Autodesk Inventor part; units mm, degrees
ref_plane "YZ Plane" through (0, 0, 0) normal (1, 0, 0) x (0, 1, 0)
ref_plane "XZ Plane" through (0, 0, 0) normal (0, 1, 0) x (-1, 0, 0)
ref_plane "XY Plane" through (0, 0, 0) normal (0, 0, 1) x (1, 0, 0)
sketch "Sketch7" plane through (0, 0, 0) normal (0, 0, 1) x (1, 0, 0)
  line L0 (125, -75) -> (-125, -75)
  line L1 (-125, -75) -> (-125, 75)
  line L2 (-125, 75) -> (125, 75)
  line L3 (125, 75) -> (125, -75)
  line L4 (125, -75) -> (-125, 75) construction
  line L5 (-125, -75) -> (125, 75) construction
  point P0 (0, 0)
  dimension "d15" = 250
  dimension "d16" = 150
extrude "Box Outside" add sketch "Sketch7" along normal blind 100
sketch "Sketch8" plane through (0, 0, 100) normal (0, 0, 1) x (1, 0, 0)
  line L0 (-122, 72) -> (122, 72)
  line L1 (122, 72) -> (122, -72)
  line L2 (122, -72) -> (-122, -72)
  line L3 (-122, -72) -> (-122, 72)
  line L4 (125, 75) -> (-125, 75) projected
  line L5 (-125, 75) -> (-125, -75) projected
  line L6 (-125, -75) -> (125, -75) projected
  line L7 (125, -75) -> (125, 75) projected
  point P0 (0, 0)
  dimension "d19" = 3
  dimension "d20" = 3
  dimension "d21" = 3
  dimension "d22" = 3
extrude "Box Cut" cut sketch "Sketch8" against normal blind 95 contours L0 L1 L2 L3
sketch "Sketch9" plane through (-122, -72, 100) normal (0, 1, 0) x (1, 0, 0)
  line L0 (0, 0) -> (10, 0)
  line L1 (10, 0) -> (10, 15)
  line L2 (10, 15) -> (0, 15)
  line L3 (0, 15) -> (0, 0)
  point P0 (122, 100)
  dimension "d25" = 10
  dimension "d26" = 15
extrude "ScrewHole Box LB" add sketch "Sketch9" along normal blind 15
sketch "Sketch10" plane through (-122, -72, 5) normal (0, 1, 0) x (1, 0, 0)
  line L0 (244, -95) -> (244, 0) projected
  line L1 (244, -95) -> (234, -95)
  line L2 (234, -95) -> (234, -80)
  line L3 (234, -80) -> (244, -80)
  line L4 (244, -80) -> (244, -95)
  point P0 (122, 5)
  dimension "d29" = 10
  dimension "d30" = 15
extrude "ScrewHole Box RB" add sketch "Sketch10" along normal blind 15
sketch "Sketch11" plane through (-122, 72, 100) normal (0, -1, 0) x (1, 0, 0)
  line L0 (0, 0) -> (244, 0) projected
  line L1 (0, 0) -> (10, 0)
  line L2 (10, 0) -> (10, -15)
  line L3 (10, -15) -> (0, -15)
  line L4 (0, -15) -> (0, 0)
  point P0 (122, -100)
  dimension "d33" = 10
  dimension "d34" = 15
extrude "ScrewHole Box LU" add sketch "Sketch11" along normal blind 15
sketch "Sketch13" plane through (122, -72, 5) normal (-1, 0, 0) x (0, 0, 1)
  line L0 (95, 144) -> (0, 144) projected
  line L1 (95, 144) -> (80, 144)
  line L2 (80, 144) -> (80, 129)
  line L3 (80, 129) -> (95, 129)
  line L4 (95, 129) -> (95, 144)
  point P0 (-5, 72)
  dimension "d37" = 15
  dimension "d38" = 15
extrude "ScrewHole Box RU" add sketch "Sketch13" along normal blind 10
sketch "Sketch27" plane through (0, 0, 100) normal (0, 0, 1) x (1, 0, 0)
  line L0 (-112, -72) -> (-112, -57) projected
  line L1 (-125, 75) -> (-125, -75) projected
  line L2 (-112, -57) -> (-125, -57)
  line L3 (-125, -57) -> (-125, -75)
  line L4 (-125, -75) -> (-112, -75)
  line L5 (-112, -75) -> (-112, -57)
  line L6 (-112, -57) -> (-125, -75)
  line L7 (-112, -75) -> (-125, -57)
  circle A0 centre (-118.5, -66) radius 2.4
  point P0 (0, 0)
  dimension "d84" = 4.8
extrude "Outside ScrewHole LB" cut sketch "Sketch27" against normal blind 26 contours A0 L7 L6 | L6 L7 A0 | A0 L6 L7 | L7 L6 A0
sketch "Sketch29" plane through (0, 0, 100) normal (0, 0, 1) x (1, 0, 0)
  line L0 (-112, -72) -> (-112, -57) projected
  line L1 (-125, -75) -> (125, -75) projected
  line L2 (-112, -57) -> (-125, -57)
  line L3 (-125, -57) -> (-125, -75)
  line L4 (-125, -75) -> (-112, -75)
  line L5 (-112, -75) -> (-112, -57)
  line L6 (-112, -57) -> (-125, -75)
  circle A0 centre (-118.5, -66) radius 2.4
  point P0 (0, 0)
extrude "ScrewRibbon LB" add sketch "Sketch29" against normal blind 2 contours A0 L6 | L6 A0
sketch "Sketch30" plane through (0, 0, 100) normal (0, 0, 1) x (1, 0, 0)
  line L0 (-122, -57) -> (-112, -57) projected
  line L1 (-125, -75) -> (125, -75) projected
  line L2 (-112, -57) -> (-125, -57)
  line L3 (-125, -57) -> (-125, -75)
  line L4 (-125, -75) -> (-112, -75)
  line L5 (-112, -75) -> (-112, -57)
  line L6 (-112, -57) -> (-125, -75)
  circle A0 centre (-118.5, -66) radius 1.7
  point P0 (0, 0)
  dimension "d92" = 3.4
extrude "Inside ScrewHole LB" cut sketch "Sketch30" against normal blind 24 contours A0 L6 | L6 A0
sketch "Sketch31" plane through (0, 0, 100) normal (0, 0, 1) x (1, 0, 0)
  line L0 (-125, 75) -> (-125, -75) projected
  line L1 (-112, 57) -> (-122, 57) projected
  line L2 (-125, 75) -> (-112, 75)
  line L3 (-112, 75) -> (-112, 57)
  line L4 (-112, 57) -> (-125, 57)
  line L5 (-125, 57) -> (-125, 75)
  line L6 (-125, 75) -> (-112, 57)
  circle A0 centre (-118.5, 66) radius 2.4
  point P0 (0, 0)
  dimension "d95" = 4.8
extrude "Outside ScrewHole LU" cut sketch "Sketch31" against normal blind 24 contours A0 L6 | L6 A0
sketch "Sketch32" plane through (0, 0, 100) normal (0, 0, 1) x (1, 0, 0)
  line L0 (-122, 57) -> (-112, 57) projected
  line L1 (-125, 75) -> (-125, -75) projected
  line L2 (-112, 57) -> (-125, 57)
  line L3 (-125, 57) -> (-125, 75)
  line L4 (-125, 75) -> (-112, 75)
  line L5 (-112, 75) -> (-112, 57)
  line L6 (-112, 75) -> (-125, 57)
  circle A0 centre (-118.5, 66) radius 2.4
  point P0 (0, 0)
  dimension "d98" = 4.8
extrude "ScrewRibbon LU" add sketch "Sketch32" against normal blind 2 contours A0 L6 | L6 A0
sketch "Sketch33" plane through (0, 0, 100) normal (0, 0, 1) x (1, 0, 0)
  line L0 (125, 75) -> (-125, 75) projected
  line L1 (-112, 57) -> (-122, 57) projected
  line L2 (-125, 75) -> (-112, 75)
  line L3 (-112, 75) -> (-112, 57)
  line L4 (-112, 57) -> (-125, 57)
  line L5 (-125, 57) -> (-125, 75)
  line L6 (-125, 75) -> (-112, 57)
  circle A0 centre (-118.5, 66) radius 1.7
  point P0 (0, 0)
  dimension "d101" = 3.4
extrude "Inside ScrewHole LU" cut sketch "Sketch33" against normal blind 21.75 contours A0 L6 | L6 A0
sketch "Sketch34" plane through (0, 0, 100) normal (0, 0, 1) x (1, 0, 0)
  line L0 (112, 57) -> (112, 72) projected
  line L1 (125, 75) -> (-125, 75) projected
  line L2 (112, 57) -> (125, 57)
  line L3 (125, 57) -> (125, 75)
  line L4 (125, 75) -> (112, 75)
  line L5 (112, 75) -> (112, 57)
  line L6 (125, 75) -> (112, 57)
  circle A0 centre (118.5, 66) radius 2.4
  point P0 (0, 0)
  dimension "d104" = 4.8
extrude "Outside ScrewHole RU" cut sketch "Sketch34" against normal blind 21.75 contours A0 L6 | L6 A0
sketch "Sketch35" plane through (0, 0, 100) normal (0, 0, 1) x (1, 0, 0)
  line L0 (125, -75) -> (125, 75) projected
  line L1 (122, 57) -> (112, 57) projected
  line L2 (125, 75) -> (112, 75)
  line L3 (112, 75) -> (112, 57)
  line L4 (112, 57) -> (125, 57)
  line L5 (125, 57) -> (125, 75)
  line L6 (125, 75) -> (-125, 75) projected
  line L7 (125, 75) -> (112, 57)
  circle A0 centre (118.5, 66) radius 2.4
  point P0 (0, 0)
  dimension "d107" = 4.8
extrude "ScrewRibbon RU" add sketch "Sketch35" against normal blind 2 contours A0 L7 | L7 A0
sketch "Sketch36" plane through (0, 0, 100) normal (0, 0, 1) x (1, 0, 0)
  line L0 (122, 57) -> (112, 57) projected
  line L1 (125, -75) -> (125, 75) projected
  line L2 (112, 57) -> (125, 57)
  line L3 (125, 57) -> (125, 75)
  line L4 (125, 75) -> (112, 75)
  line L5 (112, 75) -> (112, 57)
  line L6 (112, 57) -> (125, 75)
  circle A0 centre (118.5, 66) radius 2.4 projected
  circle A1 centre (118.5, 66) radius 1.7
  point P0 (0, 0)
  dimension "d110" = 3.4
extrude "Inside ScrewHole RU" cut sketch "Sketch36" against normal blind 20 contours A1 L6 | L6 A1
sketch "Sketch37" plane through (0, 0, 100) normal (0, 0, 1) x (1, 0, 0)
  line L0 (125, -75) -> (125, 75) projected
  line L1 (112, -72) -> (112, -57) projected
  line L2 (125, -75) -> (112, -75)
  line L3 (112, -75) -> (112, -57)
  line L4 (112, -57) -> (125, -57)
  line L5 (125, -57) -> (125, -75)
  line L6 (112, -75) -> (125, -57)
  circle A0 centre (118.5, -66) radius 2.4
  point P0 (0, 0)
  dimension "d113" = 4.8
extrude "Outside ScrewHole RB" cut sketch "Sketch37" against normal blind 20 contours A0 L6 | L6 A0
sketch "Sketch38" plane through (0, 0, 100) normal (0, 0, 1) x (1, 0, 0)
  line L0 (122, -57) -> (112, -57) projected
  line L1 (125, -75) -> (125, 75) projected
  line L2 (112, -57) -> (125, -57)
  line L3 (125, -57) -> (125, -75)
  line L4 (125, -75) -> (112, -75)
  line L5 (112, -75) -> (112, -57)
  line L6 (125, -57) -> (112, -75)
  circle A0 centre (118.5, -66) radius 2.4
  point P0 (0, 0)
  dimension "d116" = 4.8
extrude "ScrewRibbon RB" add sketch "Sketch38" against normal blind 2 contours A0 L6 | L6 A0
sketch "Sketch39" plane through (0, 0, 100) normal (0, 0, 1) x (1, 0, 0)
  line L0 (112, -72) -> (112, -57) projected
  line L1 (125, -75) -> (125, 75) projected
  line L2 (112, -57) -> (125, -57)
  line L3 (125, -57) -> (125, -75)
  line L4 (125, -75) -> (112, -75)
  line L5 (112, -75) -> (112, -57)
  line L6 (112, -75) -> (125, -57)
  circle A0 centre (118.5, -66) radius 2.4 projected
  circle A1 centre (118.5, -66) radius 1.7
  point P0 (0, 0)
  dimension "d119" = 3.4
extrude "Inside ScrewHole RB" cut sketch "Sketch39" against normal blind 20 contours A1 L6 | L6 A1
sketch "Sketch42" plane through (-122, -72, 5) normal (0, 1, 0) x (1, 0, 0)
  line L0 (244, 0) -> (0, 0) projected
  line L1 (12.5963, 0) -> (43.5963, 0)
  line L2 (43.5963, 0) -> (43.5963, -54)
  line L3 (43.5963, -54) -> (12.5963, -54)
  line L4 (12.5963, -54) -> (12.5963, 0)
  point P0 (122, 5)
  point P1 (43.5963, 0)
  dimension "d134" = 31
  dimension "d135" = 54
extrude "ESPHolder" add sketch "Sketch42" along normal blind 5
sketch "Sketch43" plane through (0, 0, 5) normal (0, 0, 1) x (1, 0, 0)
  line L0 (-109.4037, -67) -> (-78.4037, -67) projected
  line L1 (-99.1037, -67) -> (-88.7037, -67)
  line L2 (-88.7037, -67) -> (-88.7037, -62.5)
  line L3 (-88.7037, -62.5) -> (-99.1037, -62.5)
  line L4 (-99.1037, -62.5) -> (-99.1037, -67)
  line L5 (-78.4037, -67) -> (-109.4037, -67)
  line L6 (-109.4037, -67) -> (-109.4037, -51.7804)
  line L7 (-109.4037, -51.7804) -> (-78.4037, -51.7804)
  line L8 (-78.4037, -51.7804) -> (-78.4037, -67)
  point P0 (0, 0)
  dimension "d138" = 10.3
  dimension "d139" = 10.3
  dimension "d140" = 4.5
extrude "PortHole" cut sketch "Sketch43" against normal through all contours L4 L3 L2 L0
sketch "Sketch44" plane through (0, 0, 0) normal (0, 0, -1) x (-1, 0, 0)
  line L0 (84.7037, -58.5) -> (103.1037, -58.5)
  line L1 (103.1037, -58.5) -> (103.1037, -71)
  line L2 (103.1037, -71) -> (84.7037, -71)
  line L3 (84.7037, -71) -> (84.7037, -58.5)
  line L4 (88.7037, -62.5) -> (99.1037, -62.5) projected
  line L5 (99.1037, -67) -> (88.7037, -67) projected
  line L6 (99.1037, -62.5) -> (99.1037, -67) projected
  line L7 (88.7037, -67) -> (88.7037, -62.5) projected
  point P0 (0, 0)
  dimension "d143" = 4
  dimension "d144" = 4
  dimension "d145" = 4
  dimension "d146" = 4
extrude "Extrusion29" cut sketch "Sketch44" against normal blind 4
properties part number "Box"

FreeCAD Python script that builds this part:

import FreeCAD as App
import Part
import Sketcher

V = App.Vector
Q = App.Units.Quantity

doc = App.newDocument("Part")
params = doc.addObject("Spreadsheet::Sheet", "Params")
for row, (alias, value) in enumerate([
    ("sketch1_width", "250 mm"),
    ("sketch1_height", "150 mm"),
    ("pad1_length", "100 mm"),
    ("sketch2_width", "244 mm"),
    ("sketch2_height", "144 mm"),
    ("pocket1_length", "95 mm"),
    ("sketch3_width", "10 mm"),
    ("sketch3_height", "15 mm"),
    ("pad2_length", "15 mm"),
    ("sketch4_width", "10 mm"),
    ("sketch4_height", "15 mm"),
    ("pad3_length", "15 mm"),
    ("sketch5_width", "10 mm"),
    ("sketch5_height", "15 mm"),
    ("pad4_length", "15 mm"),
    ("sketch6_width", "15 mm"),
    ("pad5_length", "10 mm"),
    ("sketch7_diameter", "4.8 mm"),
    ("pocket2_length", "26 mm"),
    ("sketch8_diameter", "4.8 mm"),
    ("pad6_length", "2 mm"),
    ("sketch9_diameter", "3.4 mm"),
    ("pocket3_length", "24 mm"),
    ("sketch10_diameter", "4.8 mm"),
    ("pocket4_length", "24 mm"),
    ("sketch11_diameter", "4.8 mm"),
    ("pad7_length", "2 mm"),
    ("sketch12_diameter", "3.4 mm"),
    ("pocket5_length", "21.75 mm"),
    ("sketch13_diameter", "4.8 mm"),
    ("pocket6_length", "21.75 mm"),
    ("sketch14_diameter", "4.8 mm"),
    ("pad8_length", "2 mm"),
    ("sketch15_diameter", "3.4 mm"),
    ("pocket7_length", "20 mm"),
    ("sketch16_diameter", "4.8 mm"),
    ("pocket8_length", "20 mm"),
    ("sketch17_diameter", "4.8 mm"),
    ("pad9_length", "2 mm"),
    ("sketch18_diameter", "3.4 mm"),
    ("pocket9_length", "20 mm"),
    ("sketch19_width", "31 mm"),
    ("sketch19_height", "54 mm"),
    ("pad10_length", "5 mm"),
    ("sketch20_height", "4.5 mm"),
    ("sketch20_width", "10.4 mm"),
    ("sketch21_width", "18.4 mm"),
    ("sketch21_height", "12.5 mm"),
    ("pocket11_length", "4 mm"),
], start=1):
    params.set(f"A{row}", alias)
    params.set(f"B{row}", "=" + value)
    params.setAlias(f"B{row}", alias)

body = doc.addObject("PartDesign::Body", "Body")

# Sketch on XY plane
sketch1 = doc.addObject("Sketcher::SketchObject", "Sketch")
body.addObject(sketch1)
sketch1.AttachmentSupport = (doc.XY_Plane, [""])
sketch1.MapMode = "FlatFace"
sketch1.addGeometry(Part.LineSegment(V(-125, -75, 0), V(125, -75, 0)), False)
sketch1.addGeometry(Part.LineSegment(V(125, -75, 0), V(125, 75, 0)), False)
sketch1.addGeometry(Part.LineSegment(V(125, 75, 0), V(-125, 75, 0)), False)
sketch1.addGeometry(Part.LineSegment(V(-125, 75, 0), V(-125, -75, 0)), False)
sketch1.addConstraint(Sketcher.Constraint("Coincident", 0, 2, 1, 1))
sketch1.addConstraint(Sketcher.Constraint("Coincident", 1, 2, 2, 1))
sketch1.addConstraint(Sketcher.Constraint("Coincident", 2, 2, 3, 1))
sketch1.addConstraint(Sketcher.Constraint("Coincident", 3, 2, 0, 1))
sketch1.addConstraint(Sketcher.Constraint("Horizontal", 0))
sketch1.addConstraint(Sketcher.Constraint("Vertical", 1))
sketch1.addConstraint(Sketcher.Constraint("Horizontal", 2))
sketch1.addConstraint(Sketcher.Constraint("Vertical", 3))
sketch1.addConstraint(Sketcher.Constraint("Symmetric", 0, 2, 2, 2, -1, 1))
sketch1.addConstraint(Sketcher.Constraint("DistanceX", 0, 1, 0, 2, Q("250 mm")))
sketch1.addConstraint(Sketcher.Constraint("DistanceY", 1, 1, 1, 2, Q("150 mm")))
sketch1.setExpression("Constraints[9]", "Params.sketch1_width")
sketch1.setExpression("Constraints[10]", "Params.sketch1_height")
pad1 = doc.addObject("PartDesign::Pad", "Pad")
body.addObject(pad1)
pad1.Profile = sketch1
pad1.setExpression("Length", "Params.pad1_length")

# Sketch on XY plane
sketch2 = doc.addObject("Sketcher::SketchObject", "Sketch001")
body.addObject(sketch2)
sketch2.AttachmentSupport = (doc.XY_Plane, [""])
sketch2.MapMode = "FlatFace"
sketch2.AttachmentOffset = App.Placement(V(0, 0, 100), App.Rotation())
sketch2.addGeometry(Part.LineSegment(V(122, 72, 0), V(-122, 72, 0)), False)
sketch2.addGeometry(Part.LineSegment(V(-122, 72, 0), V(-122, -72, 0)), False)
sketch2.addGeometry(Part.LineSegment(V(-122, -72, 0), V(122, -72, 0)), False)
sketch2.addGeometry(Part.LineSegment(V(122, -72, 0), V(122, 72, 0)), False)
sketch2.addConstraint(Sketcher.Constraint("Coincident", 0, 2, 1, 1))
sketch2.addConstraint(Sketcher.Constraint("Coincident", 1, 2, 2, 1))
sketch2.addConstraint(Sketcher.Constraint("Coincident", 2, 2, 3, 1))
sketch2.addConstraint(Sketcher.Constraint("Coincident", 3, 2, 0, 1))
sketch2.addConstraint(Sketcher.Constraint("Horizontal", 0))
sketch2.addConstraint(Sketcher.Constraint("Vertical", 1))
sketch2.addConstraint(Sketcher.Constraint("Horizontal", 2))
sketch2.addConstraint(Sketcher.Constraint("Vertical", 3))
sketch2.addConstraint(Sketcher.Constraint("Symmetric", 0, 2, 2, 2, -1, 1))
sketch2.addConstraint(Sketcher.Constraint("DistanceX", 0, 2, 0, 1, Q("244 mm")))
sketch2.addConstraint(Sketcher.Constraint("DistanceY", 1, 2, 1, 1, Q("144 mm")))
sketch2.setExpression("Constraints[9]", "Params.sketch2_width")
sketch2.setExpression("Constraints[10]", "Params.sketch2_height")
pocket1 = doc.addObject("PartDesign::Pocket", "Pocket")
body.addObject(pocket1)
pocket1.Profile = sketch2
pocket1.setExpression("Length", "Params.pocket1_length")

# Sketch on XZ plane
sketch3 = doc.addObject("Sketcher::SketchObject", "Sketch002")
body.addObject(sketch3)
sketch3.AttachmentSupport = (doc.XZ_Plane, [""])
sketch3.MapMode = "FlatFace"
sketch3.AttachmentOffset = App.Placement(V(0, 0, 72), App.Rotation())
sketch3.addGeometry(Part.LineSegment(V(-122, 85, 0), V(-122, 100, 0)), False)
sketch3.addGeometry(Part.LineSegment(V(-122, 100, 0), V(-112, 100, 0)), False)
sketch3.addGeometry(Part.LineSegment(V(-112, 100, 0), V(-112, 85, 0)), False)
sketch3.addGeometry(Part.LineSegment(V(-112, 85, 0), V(-122, 85, 0)), False)
sketch3.addConstraint(Sketcher.Constraint("Coincident", 0, 2, 1, 1))
sketch3.addConstraint(Sketcher.Constraint("Coincident", 1, 2, 2, 1))
sketch3.addConstraint(Sketcher.Constraint("Coincident", 2, 2, 3, 1))
sketch3.addConstraint(Sketcher.Constraint("Coincident", 3, 2, 0, 1))
sketch3.addConstraint(Sketcher.Constraint("Vertical", 0))
sketch3.addConstraint(Sketcher.Constraint("Horizontal", 1))
sketch3.addConstraint(Sketcher.Constraint("Vertical", 2))
sketch3.addConstraint(Sketcher.Constraint("Horizontal", 3))
sketch3.addConstraint(Sketcher.Constraint("DistanceX", 1, 1, 1, 2, Q("10 mm")))
sketch3.addConstraint(Sketcher.Constraint("DistanceY", 0, 1, 0, 2, Q("15 mm")))
sketch3.addConstraint(Sketcher.Constraint("DistanceX", 0, 2, -1, 1, Q("122 mm")))
sketch3.addConstraint(Sketcher.Constraint("DistanceY", -1, 1, 0, 2, Q("100 mm")))
sketch3.setExpression("Constraints[8]", "Params.sketch3_width")
sketch3.setExpression("Constraints[9]", "Params.sketch3_height")
pad2 = doc.addObject("PartDesign::Pad", "Pad001")
body.addObject(pad2)
pad2.Profile = sketch3
pad2.setExpression("Length", "Params.pad2_length")
pad2.Reversed = True

# Sketch on XZ plane
sketch4 = doc.addObject("Sketcher::SketchObject", "Sketch003")
body.addObject(sketch4)
sketch4.AttachmentSupport = (doc.XZ_Plane, [""])
sketch4.MapMode = "FlatFace"
sketch4.AttachmentOffset = App.Placement(V(0, 0, 72), App.Rotation())
sketch4.addGeometry(Part.LineSegment(V(112, 100, 0), V(122, 100, 0)), False)
sketch4.addGeometry(Part.LineSegment(V(122, 100, 0), V(122, 85, 0)), False)
sketch4.addGeometry(Part.LineSegment(V(122, 85, 0), V(112, 85, 0)), False)
sketch4.addGeometry(Part.LineSegment(V(112, 85, 0), V(112, 100, 0)), False)
sketch4.addConstraint(Sketcher.Constraint("Coincident", 0, 2, 1, 1))
sketch4.addConstraint(Sketcher.Constraint("Coincident", 1, 2, 2, 1))
sketch4.addConstraint(Sketcher.Constraint("Coincident", 2, 2, 3, 1))
sketch4.addConstraint(Sketcher.Constraint("Coincident", 3, 2, 0, 1))
sketch4.addConstraint(Sketcher.Constraint("Horizontal", 0))
sketch4.addConstraint(Sketcher.Constraint("Vertical", 1))
sketch4.addConstraint(Sketcher.Constraint("Horizontal", 2))
sketch4.addConstraint(Sketcher.Constraint("Vertical", 3))
sketch4.addConstraint(Sketcher.Constraint("DistanceX", 0, 1, 0, 2, Q("10 mm")))
sketch4.addConstraint(Sketcher.Constraint("DistanceY", 1, 2, 1, 1, Q("15 mm")))
sketch4.addConstraint(Sketcher.Constraint("DistanceX", -1, 1, 0, 2, Q("122 mm")))
sketch4.addConstraint(Sketcher.Constraint("DistanceY", -1, 1, 0, 2, Q("100 mm")))
sketch4.setExpression("Constraints[8]", "Params.sketch4_width")
sketch4.setExpression("Constraints[9]", "Params.sketch4_height")
pad3 = doc.addObject("PartDesign::Pad", "Pad002")
body.addObject(pad3)
pad3.Profile = sketch4
pad3.setExpression("Length", "Params.pad3_length")
pad3.Reversed = True

# Sketch on XZ plane
sketch5 = doc.addObject("Sketcher::SketchObject", "Sketch004")
body.addObject(sketch5)
sketch5.AttachmentSupport = (doc.XZ_Plane, [""])
sketch5.MapMode = "FlatFace"
sketch5.AttachmentOffset = App.Placement(V(0, 0, -72), App.Rotation())
sketch5.addGeometry(Part.LineSegment(V(-112, 100, 0), V(-122, 100, 0)), False)
sketch5.addGeometry(Part.LineSegment(V(-122, 100, 0), V(-122, 85, 0)), False)
sketch5.addGeometry(Part.LineSegment(V(-122, 85, 0), V(-112, 85, 0)), False)
sketch5.addGeometry(Part.LineSegment(V(-112, 85, 0), V(-112, 100, 0)), False)
sketch5.addConstraint(Sketcher.Constraint("Coincident", 0, 2, 1, 1))
sketch5.addConstraint(Sketcher.Constraint("Coincident", 1, 2, 2, 1))
sketch5.addConstraint(Sketcher.Constraint("Coincident", 2, 2, 3, 1))
sketch5.addConstraint(Sketcher.Constraint("Coincident", 3, 2, 0, 1))
sketch5.addConstraint(Sketcher.Constraint("Horizontal", 0))
sketch5.addConstraint(Sketcher.Constraint("Vertical", 1))
sketch5.addConstraint(Sketcher.Constraint("Horizontal", 2))
sketch5.addConstraint(Sketcher.Constraint("Vertical", 3))
sketch5.addConstraint(Sketcher.Constraint("DistanceX", 0, 2, 0, 1, Q("10 mm")))
sketch5.addConstraint(Sketcher.Constraint("DistanceY", 1, 2, 1, 1, Q("15 mm")))
sketch5.addConstraint(Sketcher.Constraint("DistanceX", 0, 2, -1, 1, Q("122 mm")))
sketch5.addConstraint(Sketcher.Constraint("DistanceY", -1, 1, 0, 2, Q("100 mm")))
sketch5.setExpression("Constraints[8]", "Params.sketch5_width")
sketch5.setExpression("Constraints[9]", "Params.sketch5_height")
pad4 = doc.addObject("PartDesign::Pad", "Pad003")
body.addObject(pad4)
pad4.Profile = sketch5
pad4.setExpression("Length", "Params.pad4_length")

# Sketch on YZ plane
sketch6 = doc.addObject("Sketcher::SketchObject", "Sketch005")
body.addObject(sketch6)
sketch6.AttachmentSupport = (doc.YZ_Plane, [""])
sketch6.MapMode = "FlatFace"
sketch6.AttachmentOffset = App.Placement(V(0, 0, 122), App.Rotation())
sketch6.addGeometry(Part.LineSegment(V(57, 100, 0), V(72, 100, 0)), False)
sketch6.addGeometry(Part.LineSegment(V(72, 100, 0), V(72, 85, 0)), False)
sketch6.addGeometry(Part.LineSegment(V(72, 85, 0), V(57, 85, 0)), False)
sketch6.addGeometry(Part.LineSegment(V(57, 85, 0), V(57, 100, 0)), False)
sketch6.addConstraint(Sketcher.Constraint("Coincident", 0, 2, 1, 1))
sketch6.addConstraint(Sketcher.Constraint("Coincident", 1, 2, 2, 1))
sketch6.addConstraint(Sketcher.Constraint("Coincident", 2, 2, 3, 1))
sketch6.addConstraint(Sketcher.Constraint("Coincident", 3, 2, 0, 1))
sketch6.addConstraint(Sketcher.Constraint("Horizontal", 0))
sketch6.addConstraint(Sketcher.Constraint("Vertical", 1))
sketch6.addConstraint(Sketcher.Constraint("Horizontal", 2))
sketch6.addConstraint(Sketcher.Constraint("Vertical", 3))
sketch6.addConstraint(Sketcher.Constraint("Equal", 2, 1))
sketch6.addConstraint(Sketcher.Constraint("DistanceX", 0, 1, 0, 2, Q("15 mm")))
sketch6.addConstraint(Sketcher.Constraint("DistanceX", -1, 1, 0, 2, Q("72 mm")))
sketch6.addConstraint(Sketcher.Constraint("DistanceY", -1, 1, 0, 2, Q("100 mm")))
sketch6.setExpression("Constraints[9]", "Params.sketch6_width")
pad5 = doc.addObject("PartDesign::Pad", "Pad004")
body.addObject(pad5)
pad5.Profile = sketch6
pad5.setExpression("Length", "Params.pad5_length")
pad5.Reversed = True

# Sketch on XY plane
sketch7 = doc.addObject("Sketcher::SketchObject", "Sketch006")
body.addObject(sketch7)
sketch7.AttachmentSupport = (doc.XY_Plane, [""])
sketch7.MapMode = "FlatFace"
sketch7.AttachmentOffset = App.Placement(V(0, 0, 100), App.Rotation())
sketch7.addGeometry(Part.Circle(V(-118.5, -66, 0), V(0, 0, 1), 2.4), False)
sketch7.addConstraint(Sketcher.Constraint("Diameter", 0, Q("4.8 mm")))
sketch7.addConstraint(Sketcher.Constraint("DistanceY", 0, 3, -1, 1, Q("66 mm")))
sketch7.addConstraint(Sketcher.Constraint("DistanceX", 0, 3, -1, 1, Q("118.5 mm")))
sketch7.setExpression("Constraints[0]", "Params.sketch7_diameter")
pocket2 = doc.addObject("PartDesign::Pocket", "Pocket001")
body.addObject(pocket2)
pocket2.Profile = sketch7
pocket2.setExpression("Length", "Params.pocket2_length")

# Sketch on XY plane
sketch8 = doc.addObject("Sketcher::SketchObject", "Sketch007")
body.addObject(sketch8)
sketch8.AttachmentSupport = (doc.XY_Plane, [""])
sketch8.MapMode = "FlatFace"
sketch8.AttachmentOffset = App.Placement(V(0, 0, 100), App.Rotation())
sketch8.addGeometry(Part.Circle(V(-118.5, -66, 0), V(0, 0, 1), 2.4), False)
sketch8.addConstraint(Sketcher.Constraint("Diameter", 0, Q("4.8 mm")))
sketch8.addConstraint(Sketcher.Constraint("DistanceY", 0, 3, -1, 1, Q("66 mm")))
sketch8.addConstraint(Sketcher.Constraint("DistanceX", 0, 3, -1, 1, Q("118.5 mm")))
sketch8.setExpression("Constraints[0]", "Params.sketch8_diameter")
pad6 = doc.addObject("PartDesign::Pad", "Pad005")
body.addObject(pad6)
pad6.Profile = sketch8
pad6.setExpression("Length", "Params.pad6_length")
pad6.Reversed = True

# Sketch on XY plane
sketch9 = doc.addObject("Sketcher::SketchObject", "Sketch008")
body.addObject(sketch9)
sketch9.AttachmentSupport = (doc.XY_Plane, [""])
sketch9.MapMode = "FlatFace"
sketch9.AttachmentOffset = App.Placement(V(0, 0, 100), App.Rotation())
sketch9.addGeometry(Part.Circle(V(-118.5, -66, 0), V(0, 0, 1), 1.7), False)
sketch9.addConstraint(Sketcher.Constraint("Diameter", 0, Q("3.4 mm")))
sketch9.addConstraint(Sketcher.Constraint("DistanceY", 0, 3, -1, 1, Q("66 mm")))
sketch9.addConstraint(Sketcher.Constraint("DistanceX", 0, 3, -1, 1, Q("118.5 mm")))
sketch9.setExpression("Constraints[0]", "Params.sketch9_diameter")
pocket3 = doc.addObject("PartDesign::Pocket", "Pocket002")
body.addObject(pocket3)
pocket3.Profile = sketch9
pocket3.setExpression("Length", "Params.pocket3_length")

# Sketch on XY plane
sketch10 = doc.addObject("Sketcher::SketchObject", "Sketch009")
body.addObject(sketch10)
sketch10.AttachmentSupport = (doc.XY_Plane, [""])
sketch10.MapMode = "FlatFace"
sketch10.AttachmentOffset = App.Placement(V(0, 0, 100), App.Rotation())
sketch10.addGeometry(Part.Circle(V(-118.5, 66, 0), V(0, 0, 1), 2.4), False)
sketch10.addConstraint(Sketcher.Constraint("Diameter", 0, Q("4.8 mm")))
sketch10.addConstraint(Sketcher.Constraint("DistanceY", -1, 1, 0, 3, Q("66 mm")))
sketch10.addConstraint(Sketcher.Constraint("DistanceX", 0, 3, -1, 1, Q("118.5 mm")))
sketch10.setExpression("Constraints[0]", "Params.sketch10_diameter")
pocket4 = doc.addObject("PartDesign::Pocket", "Pocket003")
body.addObject(pocket4)
pocket4.Profile = sketch10
pocket4.setExpression("Length", "Params.pocket4_length")

# Sketch on XY plane
sketch11 = doc.addObject("Sketcher::SketchObject", "Sketch010")
body.addObject(sketch11)
sketch11.AttachmentSupport = (doc.XY_Plane, [""])
sketch11.MapMode = "FlatFace"
sketch11.AttachmentOffset = App.Placement(V(0, 0, 100), App.Rotation())
sketch11.addGeometry(Part.Circle(V(-118.5, 66, 0), V(0, 0, 1), 2.4), False)
sketch11.addConstraint(Sketcher.Constraint("Diameter", 0, Q("4.8 mm")))
sketch11.addConstraint(Sketcher.Constraint("DistanceY", -1, 1, 0, 3, Q("66 mm")))
sketch11.addConstraint(Sketcher.Constraint("DistanceX", 0, 3, -1, 1, Q("118.5 mm")))
sketch11.setExpression("Constraints[0]", "Params.sketch11_diameter")
pad7 = doc.addObject("PartDesign::Pad", "Pad006")
body.addObject(pad7)
pad7.Profile = sketch11
pad7.setExpression("Length", "Params.pad7_length")
pad7.Reversed = True

# Sketch on XY plane
sketch12 = doc.addObject("Sketcher::SketchObject", "Sketch011")
body.addObject(sketch12)
sketch12.AttachmentSupport = (doc.XY_Plane, [""])
sketch12.MapMode = "FlatFace"
sketch12.AttachmentOffset = App.Placement(V(0, 0, 100), App.Rotation())
sketch12.addGeometry(Part.Circle(V(-118.5, 66, 0), V(0, 0, 1), 1.7), False)
sketch12.addConstraint(Sketcher.Constraint("Diameter", 0, Q("3.4 mm")))
sketch12.addConstraint(Sketcher.Constraint("DistanceY", -1, 1, 0, 3, Q("66 mm")))
sketch12.addConstraint(Sketcher.Constraint("DistanceX", 0, 3, -1, 1, Q("118.5 mm")))
sketch12.setExpression("Constraints[0]", "Params.sketch12_diameter")
pocket5 = doc.addObject("PartDesign::Pocket", "Pocket004")
body.addObject(pocket5)
pocket5.Profile = sketch12
pocket5.setExpression("Length", "Params.pocket5_length")

# Sketch on XY plane
sketch13 = doc.addObject("Sketcher::SketchObject", "Sketch012")
body.addObject(sketch13)
sketch13.AttachmentSupport = (doc.XY_Plane, [""])
sketch13.MapMode = "FlatFace"
sketch13.AttachmentOffset = App.Placement(V(0, 0, 100), App.Rotation())
sketch13.addGeometry(Part.Circle(V(118.5, 66, 0), V(0, 0, 1), 2.4), False)
sketch13.addConstraint(Sketcher.Constraint("Diameter", 0, Q("4.8 mm")))
sketch13.addConstraint(Sketcher.Constraint("DistanceY", -1, 1, 0, 3, Q("66 mm")))
sketch13.addConstraint(Sketcher.Constraint("DistanceX", -1, 1, 0, 3, Q("118.5 mm")))
sketch13.setExpression("Constraints[0]", "Params.sketch13_diameter")
pocket6 = doc.addObject("PartDesign::Pocket", "Pocket005")
body.addObject(pocket6)
pocket6.Profile = sketch13
pocket6.setExpression("Length", "Params.pocket6_length")

# Sketch on XY plane
sketch14 = doc.addObject("Sketcher::SketchObject", "Sketch013")
body.addObject(sketch14)
sketch14.AttachmentSupport = (doc.XY_Plane, [""])
sketch14.MapMode = "FlatFace"
sketch14.AttachmentOffset = App.Placement(V(0, 0, 100), App.Rotation())
sketch14.addGeometry(Part.Circle(V(118.5, 66, 0), V(0, 0, 1), 2.4), False)
sketch14.addConstraint(Sketcher.Constraint("Diameter", 0, Q("4.8 mm")))
sketch14.addConstraint(Sketcher.Constraint("DistanceY", -1, 1, 0, 3, Q("66 mm")))
sketch14.addConstraint(Sketcher.Constraint("DistanceX", -1, 1, 0, 3, Q("118.5 mm")))
sketch14.setExpression("Constraints[0]", "Params.sketch14_diameter")
pad8 = doc.addObject("PartDesign::Pad", "Pad007")
body.addObject(pad8)
pad8.Profile = sketch14
pad8.setExpression("Length", "Params.pad8_length")
pad8.Reversed = True

# Sketch on XY plane
sketch15 = doc.addObject("Sketcher::SketchObject", "Sketch014")
body.addObject(sketch15)
sketch15.AttachmentSupport = (doc.XY_Plane, [""])
sketch15.MapMode = "FlatFace"
sketch15.AttachmentOffset = App.Placement(V(0, 0, 100), App.Rotation())
sketch15.addGeometry(Part.Circle(V(118.5, 66, 0), V(0, 0, 1), 1.7), False)
sketch15.addConstraint(Sketcher.Constraint("Diameter", 0, Q("3.4 mm")))
sketch15.addConstraint(Sketcher.Constraint("DistanceY", -1, 1, 0, 3, Q("66 mm")))
sketch15.addConstraint(Sketcher.Constraint("DistanceX", -1, 1, 0, 3, Q("118.5 mm")))
sketch15.setExpression("Constraints[0]", "Params.sketch15_diameter")
pocket7 = doc.addObject("PartDesign::Pocket", "Pocket006")
body.addObject(pocket7)
pocket7.Profile = sketch15
pocket7.setExpression("Length", "Params.pocket7_length")

# Sketch on XY plane
sketch16 = doc.addObject("Sketcher::SketchObject", "Sketch015")
body.addObject(sketch16)
sketch16.AttachmentSupport = (doc.XY_Plane, [""])
sketch16.MapMode = "FlatFace"
sketch16.AttachmentOffset = App.Placement(V(0, 0, 100), App.Rotation())
sketch16.addGeometry(Part.Circle(V(118.5, -66, 0), V(0, 0, 1), 2.4), False)
sketch16.addConstraint(Sketcher.Constraint("Diameter", 0, Q("4.8 mm")))
sketch16.addConstraint(Sketcher.Constraint("DistanceY", 0, 3, -1, 1, Q("66 mm")))
sketch16.addConstraint(Sketcher.Constraint("DistanceX", -1, 1, 0, 3, Q("118.5 mm")))
sketch16.setExpression("Constraints[0]", "Params.sketch16_diameter")
pocket8 = doc.addObject("PartDesign::Pocket", "Pocket007")
body.addObject(pocket8)
pocket8.Profile = sketch16
pocket8.setExpression("Length", "Params.pocket8_length")

# Sketch on XY plane
sketch17 = doc.addObject("Sketcher::SketchObject", "Sketch016")
body.addObject(sketch17)
sketch17.AttachmentSupport = (doc.XY_Plane, [""])
sketch17.MapMode = "FlatFace"
sketch17.AttachmentOffset = App.Placement(V(0, 0, 100), App.Rotation())
sketch17.addGeometry(Part.Circle(V(118.5, -66, 0), V(0, 0, 1), 2.4), False)
sketch17.addConstraint(Sketcher.Constraint("Diameter", 0, Q("4.8 mm")))
sketch17.addConstraint(Sketcher.Constraint("DistanceY", 0, 3, -1, 1, Q("66 mm")))
sketch17.addConstraint(Sketcher.Constraint("DistanceX", -1, 1, 0, 3, Q("118.5 mm")))
sketch17.setExpression("Constraints[0]", "Params.sketch17_diameter")
pad9 = doc.addObject("PartDesign::Pad", "Pad008")
body.addObject(pad9)
pad9.Profile = sketch17
pad9.setExpression("Length", "Params.pad9_length")
pad9.Reversed = True

# Sketch on XY plane
sketch18 = doc.addObject("Sketcher::SketchObject", "Sketch017")
body.addObject(sketch18)
sketch18.AttachmentSupport = (doc.XY_Plane, [""])
sketch18.MapMode = "FlatFace"
sketch18.AttachmentOffset = App.Placement(V(0, 0, 100), App.Rotation())
sketch18.addGeometry(Part.Circle(V(118.5, -66, 0), V(0, 0, 1), 1.7), False)
sketch18.addConstraint(Sketcher.Constraint("Diameter", 0, Q("3.4 mm")))
sketch18.addConstraint(Sketcher.Constraint("DistanceY", 0, 3, -1, 1, Q("66 mm")))
sketch18.addConstraint(Sketcher.Constraint("DistanceX", -1, 1, 0, 3, Q("118.5 mm")))
sketch18.setExpression("Constraints[0]", "Params.sketch18_diameter")
pocket9 = doc.addObject("PartDesign::Pocket", "Pocket008")
body.addObject(pocket9)
pocket9.Profile = sketch18
pocket9.setExpression("Length", "Params.pocket9_length")

# Sketch on XZ plane
sketch19 = doc.addObject("Sketcher::SketchObject", "Sketch018")
body.addObject(sketch19)
sketch19.AttachmentSupport = (doc.XZ_Plane, [""])
sketch19.MapMode = "FlatFace"
sketch19.AttachmentOffset = App.Placement(V(0, 0, 72), App.Rotation())
sketch19.addGeometry(Part.LineSegment(V(-78.4037, 59, 0), V(-78.4037, 5, 0)), False)
sketch19.addGeometry(Part.LineSegment(V(-78.4037, 5, 0), V(-109.4037, 5, 0)), False)
sketch19.addGeometry(Part.LineSegment(V(-109.4037, 5, 0), V(-109.4037, 59, 0)), False)
sketch19.addGeometry(Part.LineSegment(V(-109.4037, 59, 0), V(-78.4037, 59, 0)), False)
sketch19.addConstraint(Sketcher.Constraint("Coincident", 0, 2, 1, 1))
sketch19.addConstraint(Sketcher.Constraint("Coincident", 1, 2, 2, 1))
sketch19.addConstraint(Sketcher.Constraint("Coincident", 2, 2, 3, 1))
sketch19.addConstraint(Sketcher.Constraint("Coincident", 3, 2, 0, 1))
sketch19.addConstraint(Sketcher.Constraint("Vertical", 0))
sketch19.addConstraint(Sketcher.Constraint("Horizontal", 1))
sketch19.addConstraint(Sketcher.Constraint("Vertical", 2))
sketch19.addConstraint(Sketcher.Constraint("Horizontal", 3))
sketch19.addConstraint(Sketcher.Constraint("DistanceX", 1, 2, 1, 1, Q("31 mm")))
sketch19.addConstraint(Sketcher.Constraint("DistanceY", 0, 2, 0, 1, Q("54 mm")))
sketch19.addConstraint(Sketcher.Constraint("DistanceY", -1, 1, 0, 2, Q("5 mm")))
sketch19.addConstraint(Sketcher.Constraint("DistanceX", 0, 2, -1, 1, Q("78.4037 mm")))
sketch19.setExpression("Constraints[8]", "Params.sketch19_width")
sketch19.setExpression("Constraints[9]", "Params.sketch19_height")
pad10 = doc.addObject("PartDesign::Pad", "Pad009")
body.addObject(pad10)
pad10.Profile = sketch19
pad10.setExpression("Length", "Params.pad10_length")
pad10.Reversed = True

# Sketch on XY plane
sketch20 = doc.addObject("Sketcher::SketchObject", "Sketch019")
body.addObject(sketch20)
sketch20.AttachmentSupport = (doc.XY_Plane, [""])
sketch20.MapMode = "FlatFace"
sketch20.AttachmentOffset = App.Placement(V(0, 0, 5), App.Rotation())
sketch20.addGeometry(Part.LineSegment(V(-99.1037, -62.5, 0), V(-99.1037, -67, 0)), False)
sketch20.addGeometry(Part.LineSegment(V(-99.1037, -67, 0), V(-88.7037, -67, 0)), False)
sketch20.addGeometry(Part.LineSegment(V(-88.7037, -67, 0), V(-88.7037, -62.5, 0)), False)
sketch20.addGeometry(Part.LineSegment(V(-88.7037, -62.5, 0), V(-99.1037, -62.5, 0)), False)
sketch20.addConstraint(Sketcher.Constraint("Coincident", 0, 2, 1, 1))
sketch20.addConstraint(Sketcher.Constraint("Coincident", 1, 2, 2, 1))
sketch20.addConstraint(Sketcher.Constraint("Coincident", 2, 2, 3, 1))
sketch20.addConstraint(Sketcher.Constraint("Coincident", 3, 2, 0, 1))
sketch20.addConstraint(Sketcher.Constraint("Vertical", 0))
sketch20.addConstraint(Sketcher.Constraint("Horizontal", 1))
sketch20.addConstraint(Sketcher.Constraint("Vertical", 2))
sketch20.addConstraint(Sketcher.Constraint("Horizontal", 3))
sketch20.addConstraint(Sketcher.Constraint("DistanceY", 0, 2, 0, 1, Q("4.5 mm")))
sketch20.addConstraint(Sketcher.Constraint("DistanceX", 1, 1, 1, 2, Q("10.4 mm")))
sketch20.addConstraint(Sketcher.Constraint("DistanceY", 0, 2, -1, 1, Q("67 mm")))
sketch20.addConstraint(Sketcher.Constraint("DistanceX", 0, 2, -1, 1, Q("99.1037 mm")))
sketch20.setExpression("Constraints[8]", "Params.sketch20_height")
sketch20.setExpression("Constraints[9]", "Params.sketch20_width")
pocket10 = doc.addObject("PartDesign::Pocket", "Pocket009")
body.addObject(pocket10)
pocket10.Profile = sketch20
pocket10.Type = "ThroughAll"

# Sketch on XY plane
sketch21 = doc.addObject("Sketcher::SketchObject", "Sketch020")
body.addObject(sketch21)
sketch21.AttachmentSupport = (doc.XY_Plane, [""])
sketch21.MapMode = "FlatFace"
sketch21.addGeometry(Part.LineSegment(V(-103.1037, -58.5, 0), V(-84.7037, -58.5, 0)), False)
sketch21.addGeometry(Part.LineSegment(V(-84.7037, -58.5, 0), V(-84.7037, -71, 0)), False)
sketch21.addGeometry(Part.LineSegment(V(-84.7037, -71, 0), V(-103.1037, -71, 0)), False)
sketch21.addGeometry(Part.LineSegment(V(-103.1037, -71, 0), V(-103.1037, -58.5, 0)), False)
sketch21.addGeometry(Part.LineSegment(V(-88.7037, -67, 0), V(-88.7037, -62.5, 0)), False)
sketch21.addGeometry(Part.LineSegment(V(-88.7037, -62.5, 0), V(-99.1037, -62.5, 0)), False)
sketch21.addGeometry(Part.LineSegment(V(-99.1037, -62.5, 0), V(-99.1037, -67, 0)), False)
sketch21.addGeometry(Part.LineSegment(V(-99.1037, -67, 0), V(-88.7037, -67, 0)), False)
sketch21.addConstraint(Sketcher.Constraint("Coincident", 0, 2, 1, 1))
sketch21.addConstraint(Sketcher.Constraint("Coincident", 1, 2, 2, 1))
sketch21.addConstraint(Sketcher.Constraint("Coincident", 2, 2, 3, 1))
sketch21.addConstraint(Sketcher.Constraint("Coincident", 3, 2, 0, 1))
sketch21.addConstraint(Sketcher.Constraint("Coincident", 4, 2, 5, 1))
sketch21.addConstraint(Sketcher.Constraint("Coincident", 5, 2, 6, 1))
sketch21.addConstraint(Sketcher.Constraint("Coincident", 6, 2, 7, 1))
sketch21.addConstraint(Sketcher.Constraint("Coincident", 7, 2, 4, 1))
sketch21.addConstraint(Sketcher.Constraint("Horizontal", 0))
sketch21.addConstraint(Sketcher.Constraint("Vertical", 1))
sketch21.addConstraint(Sketcher.Constraint("Horizontal", 2))
sketch21.addConstraint(Sketcher.Constraint("Vertical", 3))
sketch21.addConstraint(Sketcher.Constraint("Vertical", 4))
sketch21.addConstraint(Sketcher.Constraint("Horizontal", 5))
sketch21.addConstraint(Sketcher.Constraint("Vertical", 6))
sketch21.addConstraint(Sketcher.Constraint("Horizontal", 7))
sketch21.addConstraint(Sketcher.Constraint("DistanceX", 4, 2, 0, 2, Q("4 mm")))
sketch21.addConstraint(Sketcher.Constraint("DistanceY", 4, 2, 0, 2, Q("4 mm")))
sketch21.addConstraint(Sketcher.Constraint("DistanceX", 3, 2, 5, 2, Q("4 mm")))
sketch21.addConstraint(Sketcher.Constraint("DistanceY", 2, 2, 6, 2, Q("4 mm")))
sketch21.addConstraint(Sketcher.Constraint("DistanceX", 0, 1, 0, 2, Q("18.4 mm")))
sketch21.addConstraint(Sketcher.Constraint("DistanceY", 1, 2, 1, 1, Q("12.5 mm")))
sketch21.addConstraint(Sketcher.Constraint("DistanceY", 1, 2, -1, 1, Q("71 mm")))
sketch21.addConstraint(Sketcher.Constraint("DistanceX", 0, 2, -1, 1, Q("84.7037 mm")))
sketch21.setExpression("Constraints[20]", "Params.sketch21_width")
sketch21.setExpression("Constraints[21]", "Params.sketch21_height")
pocket11 = doc.addObject("PartDesign::Pocket", "Pocket010")
body.addObject(pocket11)
pocket11.Profile = sketch21
pocket11.setExpression("Length", "Params.pocket11_length")
pocket11.Reversed = True

doc.recompute()
